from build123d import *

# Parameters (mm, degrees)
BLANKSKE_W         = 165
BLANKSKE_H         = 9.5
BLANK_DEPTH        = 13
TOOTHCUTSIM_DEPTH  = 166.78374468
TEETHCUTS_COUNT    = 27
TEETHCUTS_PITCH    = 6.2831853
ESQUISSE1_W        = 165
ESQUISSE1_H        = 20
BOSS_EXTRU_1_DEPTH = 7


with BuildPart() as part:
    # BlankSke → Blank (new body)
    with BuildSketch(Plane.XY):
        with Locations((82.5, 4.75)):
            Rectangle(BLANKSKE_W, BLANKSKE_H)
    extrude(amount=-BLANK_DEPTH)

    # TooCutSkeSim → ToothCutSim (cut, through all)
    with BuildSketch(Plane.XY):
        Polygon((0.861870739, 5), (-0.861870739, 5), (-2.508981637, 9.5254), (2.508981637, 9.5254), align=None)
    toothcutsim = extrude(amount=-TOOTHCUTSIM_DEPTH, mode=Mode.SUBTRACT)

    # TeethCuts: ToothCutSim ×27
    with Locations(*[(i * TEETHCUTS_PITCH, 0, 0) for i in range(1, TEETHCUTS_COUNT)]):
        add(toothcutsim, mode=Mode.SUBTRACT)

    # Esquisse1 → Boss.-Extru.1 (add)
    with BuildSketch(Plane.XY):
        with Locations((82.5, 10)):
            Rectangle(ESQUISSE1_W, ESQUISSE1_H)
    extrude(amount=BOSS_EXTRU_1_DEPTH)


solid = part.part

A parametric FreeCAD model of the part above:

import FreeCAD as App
import Part
import Sketcher
Q = App.Units.Quantity

doc = App.newDocument("Part")
params = doc.addObject("Spreadsheet::Sheet", "Params")
for row, (alias, value) in enumerate([
    ("sketch1_width", "165 mm"),
    ("sketch1_height", "9.5 mm"),
    ("pad1_length", "13 mm"),
    ("linearpattern_pitch", "6.283185 mm"),
    ("sketch3_width", "165 mm"),
    ("sketch3_height", "20 mm"),
    ("pad2_length", "7 mm"),
], start=1):
    params.set(f"A{row}", alias)
    params.set(f"B{row}", "=" + value)
    params.setAlias(f"B{row}", alias)

body = doc.addObject("PartDesign::Body", "Body")

# Sketch on XY plane
sketch1 = body.newObject("Sketcher::SketchObject", "Sketch")
sketch1.AttachmentSupport = (doc.getObject("XY_Plane"), [""])
sketch1.MapMode = "FlatFace"
sketch1.addGeometry([
    Part.LineSegment(App.Vector(0, 10, 0), App.Vector(0, 0, 0)),
    Part.LineSegment(App.Vector(0, 0, 0), App.Vector(165, 0, 0)),
    Part.LineSegment(App.Vector(165, 0, 0), App.Vector(165, 10, 0)),
    Part.LineSegment(App.Vector(165, 10, 0), App.Vector(0, 10, 0)),
], False)
sketch1.addConstraint([
    Sketcher.Constraint("Coincident", 0, 2, 1, 1),
    Sketcher.Constraint("Coincident", 1, 2, 2, 1),
    Sketcher.Constraint("Coincident", 2, 2, 3, 1),
    Sketcher.Constraint("Coincident", 3, 2, 0, 1),
    Sketcher.Constraint("Vertical", 0),
    Sketcher.Constraint("Horizontal", 1),
    Sketcher.Constraint("Vertical", 2),
    Sketcher.Constraint("Horizontal", 3),
    Sketcher.Constraint("Coincident", 0, 2, -1, 1),
    Sketcher.Constraint("DistanceX", 1, 1, 1, 2, 165.0),
    Sketcher.Constraint("DistanceY", 0, 2, 0, 1, 9.5),
])
sketch1.setExpression("Constraints[9]", "Params.sketch1_width")
sketch1.setExpression("Constraints[10]", "Params.sketch1_height")
pad1 = body.newObject("PartDesign::Pad", "Pad")
pad1.Profile = sketch1
pad1.setExpression("Length", "Params.pad1_length")
pad1.Reversed = True

# Sketch on XY plane
sketch2 = body.newObject("Sketcher::SketchObject", "Sketch001")
sketch2.AttachmentSupport = (doc.getObject("XY_Plane"), [""])
sketch2.MapMode = "FlatFace"
sketch2.addGeometry([
    Part.LineSegment(App.Vector(-0.9, 5, 0), App.Vector(0.9, 5, 0)),
    Part.LineSegment(App.Vector(0.9, 5, 0), App.Vector(2.5, 9.5, 0)),
    Part.LineSegment(App.Vector(2.5, 9.5, 0), App.Vector(-2.5, 9.5, 0)),
    Part.LineSegment(App.Vector(-2.5, 9.5, 0), App.Vector(-0.9, 5, 0)),
], False)
sketch2.addConstraint([
    Sketcher.Constraint("Coincident", 0, 2, 1, 1),
    Sketcher.Constraint("Coincident", 1, 2, 2, 1),
    Sketcher.Constraint("Coincident", 2, 2, 3, 1),
    Sketcher.Constraint("Coincident", 3, 2, 0, 1),
    Sketcher.Constraint("Horizontal", 0),
    Sketcher.Constraint("Horizontal", 2),
    Sketcher.Constraint("Equal", 1, 3),
    Sketcher.Constraint("Angle", 1, Q("70 deg")),
    Sketcher.Constraint("DistanceY", -1, 1, 0, 2, 5.0),
    Sketcher.Constraint("DistanceX", 0, 1, 0, 2, 1.723741),
    Sketcher.Constraint("DistanceY", -1, 1, 1, 2, 9.5254),
    Sketcher.Constraint("DistanceX", -1, 1, 0, 2, 0.861871),
])
pocket1 = body.newObject("PartDesign::Pocket", "Pocket")
pocket1.Profile = sketch2
pocket1.Type = "ThroughAll"
doc.recompute()

linearpattern = body.newObject("PartDesign::LinearPattern", "LinearPattern")
linearpattern.Originals = [pocket1]
linearpattern.Direction = (doc.getObject("X_Axis"), [""])
linearpattern.Mode = "offset"
linearpattern.setExpression("Offset", "Params.linearpattern_pitch")
linearpattern.Occurrences = 27
body.Tip = linearpattern

# Sketch on XY plane
sketch3 = body.newObject("Sketcher::SketchObject", "Sketch002")
sketch3.AttachmentSupport = (doc.getObject("XY_Plane"), [""])
sketch3.MapMode = "FlatFace"
sketch3.addGeometry([
    Part.LineSegment(App.Vector(0, 20, 0), App.Vector(0, 0, 0)),
    Part.LineSegment(App.Vector(0, 0, 0), App.Vector(165, 0, 0)),
    Part.LineSegment(App.Vector(165, 0, 0), App.Vector(165, 20, 0)),
    Part.LineSegment(App.Vector(165, 20, 0), App.Vector(0, 20, 0)),
], False)
sketch3.addConstraint([
    Sketcher.Constraint("Coincident", 0, 2, 1, 1),
    Sketcher.Constraint("Coincident", 1, 2, 2, 1),
    Sketcher.Constraint("Coincident", 2, 2, 3, 1),
    Sketcher.Constraint("Coincident", 3, 2, 0, 1),
    Sketcher.Constraint("Vertical", 0),
    Sketcher.Constraint("Horizontal", 1),
    Sketcher.Constraint("Vertical", 2),
    Sketcher.Constraint("Horizontal", 3),
    Sketcher.Constraint("Coincident", 0, 2, -1, 1),
    Sketcher.Constraint("DistanceX", 1, 1, 1, 2, 165.0),
    Sketcher.Constraint("DistanceY", 0, 2, 0, 1, 20.0),
])
sketch3.setExpression("Constraints[9]", "Params.sketch3_width")
sketch3.setExpression("Constraints[10]", "Params.sketch3_height")
pad2 = body.newObject("PartDesign::Pad", "Pad001")
pad2.Profile = sketch3
pad2.setExpression("Length", "Params.pad2_length")

doc.recompute()
